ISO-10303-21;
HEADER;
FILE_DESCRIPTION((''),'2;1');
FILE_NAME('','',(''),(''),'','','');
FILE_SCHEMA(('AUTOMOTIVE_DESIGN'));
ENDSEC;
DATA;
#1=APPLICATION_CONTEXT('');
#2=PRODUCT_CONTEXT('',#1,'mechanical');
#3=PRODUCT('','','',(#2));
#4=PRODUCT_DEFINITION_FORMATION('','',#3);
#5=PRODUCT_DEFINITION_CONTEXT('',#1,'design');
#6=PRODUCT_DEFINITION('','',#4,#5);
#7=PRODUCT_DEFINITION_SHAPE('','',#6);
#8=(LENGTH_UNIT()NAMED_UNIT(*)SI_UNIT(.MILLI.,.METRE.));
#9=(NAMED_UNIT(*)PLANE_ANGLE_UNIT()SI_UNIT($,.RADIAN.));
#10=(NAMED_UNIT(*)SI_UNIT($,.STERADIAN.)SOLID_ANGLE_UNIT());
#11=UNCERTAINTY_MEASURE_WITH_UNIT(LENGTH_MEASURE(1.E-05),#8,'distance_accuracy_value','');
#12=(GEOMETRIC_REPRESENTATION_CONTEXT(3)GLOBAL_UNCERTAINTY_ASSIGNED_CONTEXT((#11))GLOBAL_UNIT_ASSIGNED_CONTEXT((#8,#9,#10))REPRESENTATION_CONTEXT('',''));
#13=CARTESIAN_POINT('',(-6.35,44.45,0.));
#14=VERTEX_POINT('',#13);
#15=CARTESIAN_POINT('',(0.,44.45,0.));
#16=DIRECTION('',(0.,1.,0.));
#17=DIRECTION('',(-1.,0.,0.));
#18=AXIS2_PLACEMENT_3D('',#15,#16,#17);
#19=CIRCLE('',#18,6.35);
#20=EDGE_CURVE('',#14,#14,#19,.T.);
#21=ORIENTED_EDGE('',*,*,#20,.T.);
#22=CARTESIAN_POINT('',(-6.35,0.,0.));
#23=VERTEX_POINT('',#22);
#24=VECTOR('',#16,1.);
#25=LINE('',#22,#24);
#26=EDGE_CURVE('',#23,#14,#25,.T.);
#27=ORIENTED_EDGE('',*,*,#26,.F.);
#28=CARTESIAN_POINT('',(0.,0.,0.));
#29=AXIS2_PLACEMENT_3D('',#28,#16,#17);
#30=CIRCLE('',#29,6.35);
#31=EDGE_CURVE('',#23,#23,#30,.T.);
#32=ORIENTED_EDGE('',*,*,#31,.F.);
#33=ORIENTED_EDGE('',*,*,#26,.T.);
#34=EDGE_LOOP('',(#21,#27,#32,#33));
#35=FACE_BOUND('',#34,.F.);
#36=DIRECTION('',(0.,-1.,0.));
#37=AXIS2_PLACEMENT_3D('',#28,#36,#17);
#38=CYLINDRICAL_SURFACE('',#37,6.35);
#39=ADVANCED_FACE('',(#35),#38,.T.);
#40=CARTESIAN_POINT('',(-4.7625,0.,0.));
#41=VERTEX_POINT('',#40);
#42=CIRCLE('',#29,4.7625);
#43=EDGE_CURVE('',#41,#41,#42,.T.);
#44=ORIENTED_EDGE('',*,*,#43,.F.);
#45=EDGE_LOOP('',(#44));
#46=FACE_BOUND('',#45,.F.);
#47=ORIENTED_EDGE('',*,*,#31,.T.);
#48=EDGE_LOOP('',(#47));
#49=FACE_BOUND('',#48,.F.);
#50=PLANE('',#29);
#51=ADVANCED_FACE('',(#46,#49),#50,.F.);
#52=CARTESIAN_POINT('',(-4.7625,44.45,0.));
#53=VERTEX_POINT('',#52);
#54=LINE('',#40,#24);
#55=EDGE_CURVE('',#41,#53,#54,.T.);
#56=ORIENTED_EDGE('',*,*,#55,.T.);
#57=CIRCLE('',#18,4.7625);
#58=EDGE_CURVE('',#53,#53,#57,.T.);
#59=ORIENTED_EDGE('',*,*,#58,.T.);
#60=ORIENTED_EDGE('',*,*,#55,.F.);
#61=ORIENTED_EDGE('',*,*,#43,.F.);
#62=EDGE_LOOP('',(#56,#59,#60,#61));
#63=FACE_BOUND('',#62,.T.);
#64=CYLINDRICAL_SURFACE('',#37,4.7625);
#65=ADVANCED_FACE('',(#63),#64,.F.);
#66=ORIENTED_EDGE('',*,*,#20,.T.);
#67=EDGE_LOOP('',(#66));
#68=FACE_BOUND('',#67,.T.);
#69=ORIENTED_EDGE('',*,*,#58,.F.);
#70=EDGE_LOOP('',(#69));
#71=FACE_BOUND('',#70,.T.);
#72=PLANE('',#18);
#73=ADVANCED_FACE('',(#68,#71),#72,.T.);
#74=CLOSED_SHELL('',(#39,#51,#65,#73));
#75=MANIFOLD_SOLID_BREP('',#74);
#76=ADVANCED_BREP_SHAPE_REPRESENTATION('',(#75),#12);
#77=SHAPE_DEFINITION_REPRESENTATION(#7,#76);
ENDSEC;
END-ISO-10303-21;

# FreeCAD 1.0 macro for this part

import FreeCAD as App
import Part
import Sketcher
Q = App.Units.Quantity

doc = App.newDocument("Part")
body = doc.addObject("PartDesign::Body", "Body")

# Sketch on XZ plane
sketch1 = doc.addObject("Sketcher::SketchObject", "Sketch")
body.addObject(sketch1)
sketch1.AttachmentSupport = (doc.XZ_Plane, [""])
sketch1.MapMode = "FlatFace"
sketch1.addGeometry(Part.Circle(App.Vector(0, 0, 0), App.Vector(0, 0, 1), 6.3), False)
sketch1.addGeometry(Part.Circle(App.Vector(0, 0, 0), App.Vector(0, 0, 1), 4.8), False)
sketch1.addConstraint(Sketcher.Constraint("Coincident", 0, 3, -1, 1))
sketch1.addConstraint(Sketcher.Constraint("Coincident", 1, 3, -1, 1))
sketch1.addConstraint(Sketcher.Constraint("Diameter", 0, Q("0.5 in")))
sketch1.addConstraint(Sketcher.Constraint("Diameter", 1, Q("0.375 in")))
pad1 = doc.addObject("PartDesign::Pad", "Pad")
body.addObject(pad1)
pad1.Profile = sketch1
pad1.Length = Q("1.75 in")
pad1.Reversed = True

doc.recompute()
